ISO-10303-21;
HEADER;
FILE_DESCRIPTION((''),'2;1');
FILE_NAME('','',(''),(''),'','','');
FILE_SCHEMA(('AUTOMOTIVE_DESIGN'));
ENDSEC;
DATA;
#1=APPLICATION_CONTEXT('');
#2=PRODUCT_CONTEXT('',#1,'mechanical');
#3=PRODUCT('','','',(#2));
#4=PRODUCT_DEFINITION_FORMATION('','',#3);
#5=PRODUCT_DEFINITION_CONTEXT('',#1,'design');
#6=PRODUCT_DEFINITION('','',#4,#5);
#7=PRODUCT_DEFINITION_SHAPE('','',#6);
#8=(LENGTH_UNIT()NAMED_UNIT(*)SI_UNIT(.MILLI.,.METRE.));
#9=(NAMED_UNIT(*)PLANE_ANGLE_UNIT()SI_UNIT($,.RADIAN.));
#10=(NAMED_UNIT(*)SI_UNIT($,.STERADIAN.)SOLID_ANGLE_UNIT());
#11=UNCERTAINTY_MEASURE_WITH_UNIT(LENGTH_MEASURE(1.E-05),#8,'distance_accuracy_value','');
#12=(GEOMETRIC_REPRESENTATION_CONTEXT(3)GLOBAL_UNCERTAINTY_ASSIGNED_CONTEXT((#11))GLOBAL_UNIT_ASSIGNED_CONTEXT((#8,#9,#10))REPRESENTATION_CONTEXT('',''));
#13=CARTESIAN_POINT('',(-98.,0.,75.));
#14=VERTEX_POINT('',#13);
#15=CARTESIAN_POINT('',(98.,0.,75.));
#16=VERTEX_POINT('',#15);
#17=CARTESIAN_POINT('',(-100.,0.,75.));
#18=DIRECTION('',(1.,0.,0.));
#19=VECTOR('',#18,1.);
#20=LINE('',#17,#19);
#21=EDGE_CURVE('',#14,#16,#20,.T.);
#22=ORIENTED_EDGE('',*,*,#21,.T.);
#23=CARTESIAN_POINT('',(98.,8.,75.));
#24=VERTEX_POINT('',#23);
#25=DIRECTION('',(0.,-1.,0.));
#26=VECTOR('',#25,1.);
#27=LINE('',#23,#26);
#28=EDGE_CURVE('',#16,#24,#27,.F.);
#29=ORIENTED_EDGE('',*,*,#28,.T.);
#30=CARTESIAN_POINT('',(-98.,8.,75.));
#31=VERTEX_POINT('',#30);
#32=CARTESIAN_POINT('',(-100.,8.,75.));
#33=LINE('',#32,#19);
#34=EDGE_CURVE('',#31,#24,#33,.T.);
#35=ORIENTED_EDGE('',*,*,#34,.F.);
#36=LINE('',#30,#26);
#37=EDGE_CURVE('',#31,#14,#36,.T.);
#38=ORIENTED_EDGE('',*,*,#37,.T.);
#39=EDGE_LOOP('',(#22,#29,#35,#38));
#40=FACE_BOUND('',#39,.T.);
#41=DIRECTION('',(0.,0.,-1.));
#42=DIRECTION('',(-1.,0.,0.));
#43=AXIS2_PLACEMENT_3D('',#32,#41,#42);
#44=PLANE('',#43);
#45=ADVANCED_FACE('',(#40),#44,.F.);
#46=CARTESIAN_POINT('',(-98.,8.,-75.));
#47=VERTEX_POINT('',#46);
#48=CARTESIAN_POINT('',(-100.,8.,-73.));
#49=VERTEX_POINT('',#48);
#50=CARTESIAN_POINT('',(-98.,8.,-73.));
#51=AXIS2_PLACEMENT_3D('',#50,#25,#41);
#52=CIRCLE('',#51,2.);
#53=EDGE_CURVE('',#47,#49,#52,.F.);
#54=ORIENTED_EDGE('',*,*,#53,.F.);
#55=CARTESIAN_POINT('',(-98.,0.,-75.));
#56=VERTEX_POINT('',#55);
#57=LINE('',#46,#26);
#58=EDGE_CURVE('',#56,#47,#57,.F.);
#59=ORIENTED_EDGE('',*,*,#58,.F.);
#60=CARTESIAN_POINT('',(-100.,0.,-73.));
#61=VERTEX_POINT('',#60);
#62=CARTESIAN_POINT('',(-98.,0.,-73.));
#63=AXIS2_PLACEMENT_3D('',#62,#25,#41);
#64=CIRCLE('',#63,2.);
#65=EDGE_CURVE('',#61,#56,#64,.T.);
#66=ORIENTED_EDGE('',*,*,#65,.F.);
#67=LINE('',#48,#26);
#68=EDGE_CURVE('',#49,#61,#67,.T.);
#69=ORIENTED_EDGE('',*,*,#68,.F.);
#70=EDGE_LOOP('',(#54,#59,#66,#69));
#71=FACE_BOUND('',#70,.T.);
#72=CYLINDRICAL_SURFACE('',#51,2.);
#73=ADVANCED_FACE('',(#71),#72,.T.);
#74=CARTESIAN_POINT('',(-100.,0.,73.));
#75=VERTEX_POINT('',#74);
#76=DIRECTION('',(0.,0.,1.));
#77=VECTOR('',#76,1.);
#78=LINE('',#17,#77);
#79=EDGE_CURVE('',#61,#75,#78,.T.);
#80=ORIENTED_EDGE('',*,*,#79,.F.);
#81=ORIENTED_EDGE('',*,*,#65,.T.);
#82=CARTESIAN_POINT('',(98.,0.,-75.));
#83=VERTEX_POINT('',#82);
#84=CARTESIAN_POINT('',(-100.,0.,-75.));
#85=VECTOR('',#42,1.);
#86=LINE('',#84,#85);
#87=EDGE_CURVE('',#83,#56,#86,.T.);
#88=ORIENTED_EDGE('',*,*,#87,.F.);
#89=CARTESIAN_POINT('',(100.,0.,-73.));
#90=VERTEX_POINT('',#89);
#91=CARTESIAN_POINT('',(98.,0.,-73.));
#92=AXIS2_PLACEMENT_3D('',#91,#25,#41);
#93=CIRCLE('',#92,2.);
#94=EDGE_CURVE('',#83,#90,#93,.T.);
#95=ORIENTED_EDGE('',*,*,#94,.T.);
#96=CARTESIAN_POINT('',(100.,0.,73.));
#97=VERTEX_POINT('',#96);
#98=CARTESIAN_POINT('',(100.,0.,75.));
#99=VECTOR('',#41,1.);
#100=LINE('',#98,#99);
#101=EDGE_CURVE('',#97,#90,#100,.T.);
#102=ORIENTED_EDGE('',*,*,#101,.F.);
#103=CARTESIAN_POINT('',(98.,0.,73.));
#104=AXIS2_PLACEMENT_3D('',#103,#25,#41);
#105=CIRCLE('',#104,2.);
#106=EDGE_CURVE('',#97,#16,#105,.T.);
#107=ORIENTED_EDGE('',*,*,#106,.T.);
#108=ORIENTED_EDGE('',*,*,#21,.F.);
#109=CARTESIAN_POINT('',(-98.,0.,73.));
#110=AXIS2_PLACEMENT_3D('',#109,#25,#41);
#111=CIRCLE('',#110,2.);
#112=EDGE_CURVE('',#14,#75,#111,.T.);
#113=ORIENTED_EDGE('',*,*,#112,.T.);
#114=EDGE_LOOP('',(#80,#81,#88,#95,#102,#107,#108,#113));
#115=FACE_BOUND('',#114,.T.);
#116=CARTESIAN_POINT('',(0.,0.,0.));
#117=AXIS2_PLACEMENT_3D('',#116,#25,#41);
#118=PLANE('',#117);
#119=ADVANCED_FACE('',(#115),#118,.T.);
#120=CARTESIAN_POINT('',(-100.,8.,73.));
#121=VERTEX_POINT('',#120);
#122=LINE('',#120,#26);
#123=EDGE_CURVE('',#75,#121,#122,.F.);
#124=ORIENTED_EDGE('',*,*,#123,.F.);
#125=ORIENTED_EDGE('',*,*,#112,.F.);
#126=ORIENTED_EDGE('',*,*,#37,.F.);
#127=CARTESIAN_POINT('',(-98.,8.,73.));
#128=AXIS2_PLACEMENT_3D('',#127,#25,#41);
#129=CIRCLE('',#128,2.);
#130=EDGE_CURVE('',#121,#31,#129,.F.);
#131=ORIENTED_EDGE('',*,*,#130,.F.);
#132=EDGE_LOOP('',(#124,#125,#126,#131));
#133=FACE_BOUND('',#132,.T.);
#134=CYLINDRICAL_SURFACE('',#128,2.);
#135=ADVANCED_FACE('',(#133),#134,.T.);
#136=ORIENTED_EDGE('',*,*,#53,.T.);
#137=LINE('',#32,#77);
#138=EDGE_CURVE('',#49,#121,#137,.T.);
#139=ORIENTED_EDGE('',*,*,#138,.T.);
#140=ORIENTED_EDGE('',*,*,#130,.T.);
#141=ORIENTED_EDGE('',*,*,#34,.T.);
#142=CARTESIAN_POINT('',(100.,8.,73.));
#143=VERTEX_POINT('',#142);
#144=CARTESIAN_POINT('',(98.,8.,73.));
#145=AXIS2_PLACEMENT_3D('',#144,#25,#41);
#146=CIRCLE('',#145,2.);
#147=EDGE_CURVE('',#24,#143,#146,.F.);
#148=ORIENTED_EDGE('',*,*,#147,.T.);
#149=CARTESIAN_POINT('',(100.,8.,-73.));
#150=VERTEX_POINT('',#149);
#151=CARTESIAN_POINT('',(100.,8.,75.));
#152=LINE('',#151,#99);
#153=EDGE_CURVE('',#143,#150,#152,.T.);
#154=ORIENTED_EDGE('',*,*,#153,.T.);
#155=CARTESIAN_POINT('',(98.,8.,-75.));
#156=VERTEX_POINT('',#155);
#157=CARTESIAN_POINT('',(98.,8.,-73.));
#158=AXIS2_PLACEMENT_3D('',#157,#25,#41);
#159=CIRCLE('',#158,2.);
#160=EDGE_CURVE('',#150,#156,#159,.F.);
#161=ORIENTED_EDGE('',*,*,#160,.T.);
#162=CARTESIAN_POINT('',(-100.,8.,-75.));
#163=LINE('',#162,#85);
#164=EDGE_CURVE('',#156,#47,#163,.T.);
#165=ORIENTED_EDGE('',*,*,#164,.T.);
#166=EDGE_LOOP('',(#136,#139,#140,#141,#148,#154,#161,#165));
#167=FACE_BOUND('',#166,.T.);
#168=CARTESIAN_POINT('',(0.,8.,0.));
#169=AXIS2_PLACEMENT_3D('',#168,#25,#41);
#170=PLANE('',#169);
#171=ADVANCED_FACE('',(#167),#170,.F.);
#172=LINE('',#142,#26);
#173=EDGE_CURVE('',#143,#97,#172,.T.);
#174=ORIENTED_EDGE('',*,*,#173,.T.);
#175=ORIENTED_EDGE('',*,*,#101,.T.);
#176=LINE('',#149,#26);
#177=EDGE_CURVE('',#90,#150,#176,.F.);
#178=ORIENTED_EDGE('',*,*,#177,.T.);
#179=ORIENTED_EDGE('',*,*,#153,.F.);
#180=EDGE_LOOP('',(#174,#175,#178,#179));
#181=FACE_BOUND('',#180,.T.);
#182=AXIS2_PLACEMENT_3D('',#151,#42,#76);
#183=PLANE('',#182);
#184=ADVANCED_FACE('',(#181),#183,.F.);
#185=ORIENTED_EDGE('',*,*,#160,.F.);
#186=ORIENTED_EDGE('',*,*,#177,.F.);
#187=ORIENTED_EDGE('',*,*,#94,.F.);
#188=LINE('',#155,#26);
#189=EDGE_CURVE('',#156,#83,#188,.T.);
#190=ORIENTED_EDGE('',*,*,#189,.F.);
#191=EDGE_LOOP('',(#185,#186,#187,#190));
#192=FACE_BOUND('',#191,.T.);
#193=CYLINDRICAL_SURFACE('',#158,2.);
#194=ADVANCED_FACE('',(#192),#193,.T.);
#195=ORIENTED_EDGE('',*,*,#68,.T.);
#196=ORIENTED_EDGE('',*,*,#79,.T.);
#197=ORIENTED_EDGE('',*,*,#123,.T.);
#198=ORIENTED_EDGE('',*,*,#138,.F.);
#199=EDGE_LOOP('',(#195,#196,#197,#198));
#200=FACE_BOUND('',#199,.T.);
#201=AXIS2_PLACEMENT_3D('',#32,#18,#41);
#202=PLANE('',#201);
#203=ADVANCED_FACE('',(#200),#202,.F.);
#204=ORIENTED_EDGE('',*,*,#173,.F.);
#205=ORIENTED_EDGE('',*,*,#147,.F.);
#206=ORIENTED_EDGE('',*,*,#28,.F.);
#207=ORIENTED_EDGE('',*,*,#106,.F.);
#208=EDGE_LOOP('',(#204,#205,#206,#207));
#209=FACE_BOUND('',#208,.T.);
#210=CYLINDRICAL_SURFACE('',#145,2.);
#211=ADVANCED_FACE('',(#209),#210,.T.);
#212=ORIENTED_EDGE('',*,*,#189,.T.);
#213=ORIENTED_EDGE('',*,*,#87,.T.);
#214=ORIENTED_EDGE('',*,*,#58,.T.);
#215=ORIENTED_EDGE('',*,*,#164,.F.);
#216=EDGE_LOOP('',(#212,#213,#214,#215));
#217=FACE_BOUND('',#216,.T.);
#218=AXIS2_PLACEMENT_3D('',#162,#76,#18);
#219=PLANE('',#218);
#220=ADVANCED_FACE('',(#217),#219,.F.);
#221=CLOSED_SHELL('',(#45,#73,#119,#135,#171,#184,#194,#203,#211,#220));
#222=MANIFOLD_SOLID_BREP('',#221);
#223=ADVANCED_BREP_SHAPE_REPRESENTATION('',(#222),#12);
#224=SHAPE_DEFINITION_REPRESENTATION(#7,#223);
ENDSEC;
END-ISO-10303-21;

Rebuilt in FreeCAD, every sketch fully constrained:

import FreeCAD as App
import Part
import Sketcher

V = App.Vector


def edges_at(feature, points):
    """Names of the edges that pass closest to the given points."""
    edges = feature.Shape.Edges
    near = lambda p: min(range(len(edges)), key=lambda i: edges[i].distToShape(Part.Vertex(*p))[0])
    return sorted({f"Edge{near(p) + 1}" for p in points})

doc = App.newDocument("Part")
params = doc.addObject("Spreadsheet::Sheet", "Params")
for row, (alias, value) in enumerate([
    ("sketch1_width", "200 mm"),
    ("sketch1_height", "150 mm"),
    ("pad1_length", "8 mm"),
    ("fillet_radius", "2 mm"),
], start=1):
    params.set(f"A{row}", alias)
    params.set(f"B{row}", "=" + value)
    params.setAlias(f"B{row}", alias)

body = doc.addObject("PartDesign::Body", "Body")

sketch1 = doc.addObject("Sketcher::SketchObject", "Sketch")
body.addObject(sketch1)
sketch1.AttachmentSupport = (doc.XZ_Plane, [""])
sketch1.MapMode = "FlatFace"
sketch1.addGeometry([
    Part.LineSegment(V(-100, -75, 0), V(-100, 75, 0)),
    Part.LineSegment(V(-100, 75, 0), V(100, 75, 0)),
    Part.LineSegment(V(100, 75, 0), V(100, -75, 0)),
    Part.LineSegment(V(100, -75, 0), V(-100, -75, 0)),
], False)
sketch1.addConstraint([
    Sketcher.Constraint("Coincident", 0, 2, 1, 1),
    Sketcher.Constraint("Coincident", 1, 2, 2, 1),
    Sketcher.Constraint("Coincident", 2, 2, 3, 1),
    Sketcher.Constraint("Coincident", 3, 2, 0, 1),
    Sketcher.Constraint("Vertical", 0),
    Sketcher.Constraint("Horizontal", 1),
    Sketcher.Constraint("Vertical", 2),
    Sketcher.Constraint("Horizontal", 3),
    Sketcher.Constraint("Symmetric", 0, 2, 2, 2, -1, 1),
    Sketcher.Constraint("DistanceX", 1, 1, 1, 2, 200.0),
    Sketcher.Constraint("DistanceY", 0, 1, 0, 2, 150.0),
])
sketch1.setExpression("Constraints[9]", "Params.sketch1_width")
sketch1.setExpression("Constraints[10]", "Params.sketch1_height")
pad1 = doc.addObject("PartDesign::Pad", "Pad")
body.addObject(pad1)
pad1.Profile = sketch1
pad1.setExpression("Length", "Params.pad1_length")
pad1.Reversed = True
doc.recompute()

fillet = doc.addObject("PartDesign::Fillet", "Fillet")
body.addObject(fillet)
fillet.Base = (pad1, edges_at(pad1, [
    (100, 4, 75),
    (-100, 4, 75),
    (-100, 4, -75),
    (100, 4, -75),
]))
fillet.setExpression("Radius", "Params.fillet_radius")

doc.recompute()
